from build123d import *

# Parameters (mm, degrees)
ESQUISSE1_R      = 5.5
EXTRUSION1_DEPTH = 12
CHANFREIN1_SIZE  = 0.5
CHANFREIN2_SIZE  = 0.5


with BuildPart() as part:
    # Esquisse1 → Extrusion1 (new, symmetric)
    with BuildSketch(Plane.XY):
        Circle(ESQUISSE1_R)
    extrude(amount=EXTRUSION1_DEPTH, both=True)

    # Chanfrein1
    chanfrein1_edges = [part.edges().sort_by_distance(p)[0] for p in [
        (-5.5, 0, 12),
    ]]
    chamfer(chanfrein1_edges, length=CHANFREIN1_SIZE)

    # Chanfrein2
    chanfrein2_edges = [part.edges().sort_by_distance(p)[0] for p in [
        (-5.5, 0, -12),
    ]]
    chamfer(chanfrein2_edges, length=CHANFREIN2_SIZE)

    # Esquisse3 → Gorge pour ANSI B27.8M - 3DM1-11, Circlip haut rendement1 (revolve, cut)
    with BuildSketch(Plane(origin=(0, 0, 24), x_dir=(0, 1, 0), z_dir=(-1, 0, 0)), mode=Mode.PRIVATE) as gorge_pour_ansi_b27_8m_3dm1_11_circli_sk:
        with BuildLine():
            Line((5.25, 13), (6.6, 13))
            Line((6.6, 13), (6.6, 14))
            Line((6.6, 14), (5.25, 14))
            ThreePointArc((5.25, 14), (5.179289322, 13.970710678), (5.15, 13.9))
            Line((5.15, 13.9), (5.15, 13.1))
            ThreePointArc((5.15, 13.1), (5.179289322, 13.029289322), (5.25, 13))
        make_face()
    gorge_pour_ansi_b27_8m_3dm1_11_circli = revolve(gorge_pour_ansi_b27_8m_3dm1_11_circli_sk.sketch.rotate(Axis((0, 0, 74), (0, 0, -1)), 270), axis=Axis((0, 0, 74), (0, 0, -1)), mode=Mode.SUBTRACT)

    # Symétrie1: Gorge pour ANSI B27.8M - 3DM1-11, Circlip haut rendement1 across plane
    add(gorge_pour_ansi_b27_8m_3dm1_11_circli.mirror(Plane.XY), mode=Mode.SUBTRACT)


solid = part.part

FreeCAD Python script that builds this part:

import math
import FreeCAD as App
import Part
import Sketcher

V = App.Vector
Q = App.Units.Quantity


def edges_at(feature, points):
    """Names of the edges that pass closest to the given points."""
    edges = feature.Shape.Edges
    near = lambda p: min(range(len(edges)), key=lambda i: edges[i].distToShape(Part.Vertex(*p))[0])
    return sorted({f"Edge{near(p) + 1}" for p in points})

doc = App.newDocument("Part")
body = doc.addObject("PartDesign::Body", "Body")

# Sketch on XY plane
sketch1 = body.newObject("Sketcher::SketchObject", "Sketch")
sketch1.AttachmentSupport = (doc.getObject("XY_Plane"), [""])
sketch1.MapMode = "FlatFace"
sketch1.addGeometry(Part.Circle(V(0, 0, 0), V(0, 0, 1), 6), False)
sketch1.addConstraint([
    Sketcher.Constraint("Coincident", 0, 3, -1, 1),
    Sketcher.Constraint("Diameter", 0, Q("11 mm")),
])
pad1 = body.newObject("PartDesign::Pad", "Pad")
pad1.Profile = sketch1
pad1.Length = 24
pad1.Midplane = True
doc.recompute()

chamfer = body.newObject("PartDesign::Chamfer", "Chamfer")
chamfer.Base = (pad1, edges_at(pad1, [(-5.5, 0, 12)]))
chamfer.Size = 0.5
doc.recompute()

chamfer2 = body.newObject("PartDesign::Chamfer", "Chamfer001")
chamfer2.Base = (chamfer, edges_at(chamfer, [(-5.5, 0, -12)]))
chamfer2.Size = 0.5

# Sketch on YZ plane
sketch2 = body.newObject("Sketcher::SketchObject", "Sketch001")
sketch2.AttachmentSupport = (doc.getObject("YZ_Plane"), [""])
sketch2.MapMode = "FlatFace"
sketch2.addGeometry([
    Part.LineSegment(V(5.25, 11, 0), V(6.6, 11, 0)),  # 0
    Part.LineSegment(V(6.6, 11, 0), V(6.6, 10, 0)),  # 1
    Part.LineSegment(V(6.6, 10, 0), V(5.25, 10, 0)),  # 2
    Part.ArcOfCircle(Part.Circle(V(5.25, 10.1, 0), V(0, 0, 1), 0.1), math.radians(180), math.radians(270)),  # 3
    Part.LineSegment(V(5.15, 10.1, 0), V(5.15, 10.9, 0)),  # 4
    Part.ArcOfCircle(Part.Circle(V(5.25, 10.9, 0), V(0, 0, 1), 0.1), math.radians(90), math.radians(180)),  # 5
], False)
sketch2.addConstraint([
    Sketcher.Constraint("Coincident", 0, 2, 1, 1),
    Sketcher.Constraint("Coincident", 1, 2, 2, 1),
    Sketcher.Constraint("Tangent", 2, 2, 3, 2),
    Sketcher.Constraint("Tangent", 3, 1, 4, 1),
    Sketcher.Constraint("Tangent", 4, 2, 5, 2),
    Sketcher.Constraint("Tangent", 5, 1, 0, 1),
    Sketcher.Constraint("Horizontal", 0),
    Sketcher.Constraint("Vertical", 1),
    Sketcher.Constraint("Horizontal", 2),
    Sketcher.Constraint("Vertical", 4),
    Sketcher.Constraint("Equal", 3, 5),
    Sketcher.Constraint("Radius", 3, Q("0.1 mm")),
    Sketcher.Constraint("DistanceY", 1, 2, 1, 1, Q("1 mm")),
    Sketcher.Constraint("DistanceY", -1, 1, 0, 2, Q("11 mm")),
    Sketcher.Constraint("DistanceX", 0, 1, 0, 2, Q("1.35 mm")),
    Sketcher.Constraint("DistanceX", -1, 1, 0, 2, Q("6.6 mm")),
])
groove = body.newObject("PartDesign::Groove", "Groove")
groove.Profile = sketch2
groove.ReferenceAxis = (sketch2, ["V_Axis"])
groove.Angle = 360
doc.recompute()

mirrored = body.newObject("PartDesign::Mirrored", "Mirrored")
mirrored.Originals = [groove]
mirrored.MirrorPlane = (doc.getObject("XY_Plane"), [""])
body.Tip = mirrored

doc.recompute()
